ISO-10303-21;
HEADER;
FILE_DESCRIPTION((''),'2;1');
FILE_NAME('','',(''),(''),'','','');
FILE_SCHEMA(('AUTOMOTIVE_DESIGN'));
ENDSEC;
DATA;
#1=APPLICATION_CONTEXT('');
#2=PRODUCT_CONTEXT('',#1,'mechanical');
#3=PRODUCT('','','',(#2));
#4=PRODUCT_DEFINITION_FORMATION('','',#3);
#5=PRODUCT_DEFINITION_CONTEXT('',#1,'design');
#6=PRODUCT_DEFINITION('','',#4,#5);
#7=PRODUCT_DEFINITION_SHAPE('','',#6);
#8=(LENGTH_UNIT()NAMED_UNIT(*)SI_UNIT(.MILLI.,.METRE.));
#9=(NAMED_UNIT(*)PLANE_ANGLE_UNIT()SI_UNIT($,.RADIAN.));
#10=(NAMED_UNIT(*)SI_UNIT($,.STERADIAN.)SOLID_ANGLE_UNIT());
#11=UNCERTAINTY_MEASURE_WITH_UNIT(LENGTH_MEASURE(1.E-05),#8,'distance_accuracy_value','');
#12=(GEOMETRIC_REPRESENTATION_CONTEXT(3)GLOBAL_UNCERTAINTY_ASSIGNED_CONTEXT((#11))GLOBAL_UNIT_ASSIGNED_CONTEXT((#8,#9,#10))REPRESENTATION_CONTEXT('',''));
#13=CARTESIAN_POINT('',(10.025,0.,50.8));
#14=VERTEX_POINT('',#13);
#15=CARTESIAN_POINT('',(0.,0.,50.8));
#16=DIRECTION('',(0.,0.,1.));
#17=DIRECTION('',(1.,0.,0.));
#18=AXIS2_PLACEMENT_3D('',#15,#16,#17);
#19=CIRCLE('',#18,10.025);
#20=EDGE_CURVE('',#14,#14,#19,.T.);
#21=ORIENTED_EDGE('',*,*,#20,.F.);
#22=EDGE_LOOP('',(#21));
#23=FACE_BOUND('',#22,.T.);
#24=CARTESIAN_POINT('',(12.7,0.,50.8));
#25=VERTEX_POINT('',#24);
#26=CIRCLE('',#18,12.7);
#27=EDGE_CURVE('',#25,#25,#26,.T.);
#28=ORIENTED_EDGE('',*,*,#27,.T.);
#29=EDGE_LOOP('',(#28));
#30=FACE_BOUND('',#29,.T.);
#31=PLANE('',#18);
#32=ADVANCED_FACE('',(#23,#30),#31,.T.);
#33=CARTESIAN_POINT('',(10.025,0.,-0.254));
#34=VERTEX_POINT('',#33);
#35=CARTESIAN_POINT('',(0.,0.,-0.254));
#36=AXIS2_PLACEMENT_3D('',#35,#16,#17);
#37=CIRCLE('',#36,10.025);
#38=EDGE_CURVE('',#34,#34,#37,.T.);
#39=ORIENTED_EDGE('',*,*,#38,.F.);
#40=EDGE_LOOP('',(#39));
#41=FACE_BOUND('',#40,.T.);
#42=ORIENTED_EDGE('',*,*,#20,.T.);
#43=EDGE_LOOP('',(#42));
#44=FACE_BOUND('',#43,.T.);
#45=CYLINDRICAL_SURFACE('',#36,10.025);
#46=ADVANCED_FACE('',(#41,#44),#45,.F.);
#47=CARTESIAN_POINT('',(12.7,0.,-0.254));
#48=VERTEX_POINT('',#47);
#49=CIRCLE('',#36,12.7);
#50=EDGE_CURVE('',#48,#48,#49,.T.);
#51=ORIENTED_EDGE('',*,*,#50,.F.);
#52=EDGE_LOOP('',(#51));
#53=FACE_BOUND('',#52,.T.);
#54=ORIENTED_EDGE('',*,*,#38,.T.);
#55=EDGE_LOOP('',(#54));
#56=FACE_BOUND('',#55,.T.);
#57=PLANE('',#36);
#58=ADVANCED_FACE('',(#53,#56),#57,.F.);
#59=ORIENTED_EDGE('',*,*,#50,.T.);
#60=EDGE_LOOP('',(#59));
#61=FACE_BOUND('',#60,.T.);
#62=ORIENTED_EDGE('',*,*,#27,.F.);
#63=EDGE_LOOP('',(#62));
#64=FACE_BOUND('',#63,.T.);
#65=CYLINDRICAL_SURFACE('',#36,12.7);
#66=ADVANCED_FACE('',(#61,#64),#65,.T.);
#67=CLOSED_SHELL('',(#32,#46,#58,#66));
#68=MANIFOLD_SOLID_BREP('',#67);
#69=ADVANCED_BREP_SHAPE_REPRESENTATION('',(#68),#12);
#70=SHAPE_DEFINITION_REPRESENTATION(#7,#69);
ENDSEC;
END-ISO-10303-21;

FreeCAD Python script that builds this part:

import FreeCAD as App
import Part
import Sketcher
from FreeCAD import Vector
Q = App.Units.Quantity

doc = App.newDocument("Part")
params = doc.addObject("Spreadsheet::Sheet", "Params")
for row, (alias, value) in enumerate([
    ("sketch1_diameter", "1 in"),
    ("pad1_length", "2 in"),
    ("pad1_length2", "0.01 in"),
], start=1):
    params.set(f"A{row}", alias)
    params.set(f"B{row}", "=" + value)
    params.setAlias(f"B{row}", alias)

body = doc.addObject("PartDesign::Body", "Body")

# Sketch on XY plane
sketch1 = doc.addObject("Sketcher::SketchObject", "Sketch")
body.addObject(sketch1)
sketch1.AttachmentSupport = (doc.XY_Plane, [""])
sketch1.MapMode = "FlatFace"
sketch1.addGeometry(Part.Circle(Vector(0, 0, 0), Vector(0, 0, 1), 13), False)
sketch1.addGeometry(Part.Circle(Vector(0, 0, 0), Vector(0, 0, 1), 10), False)
sketch1.addConstraint(Sketcher.Constraint("Coincident", 0, 3, -1, 1))
sketch1.addConstraint(Sketcher.Constraint("Coincident", 1, 3, -1, 1))
sketch1.addConstraint(Sketcher.Constraint("Diameter", 0, Q("1 in")))
sketch1.addConstraint(Sketcher.Constraint("Diameter", 1, 20.05))
sketch1.setExpression("Constraints[2]", "Params.sketch1_diameter")
pad1 = doc.addObject("PartDesign::Pad", "Pad")
body.addObject(pad1)
pad1.Profile = sketch1
pad1.Type = "TwoLengths"
pad1.setExpression("Length", "Params.pad1_length")
pad1.setExpression("Length2", "Params.pad1_length2")

doc.recompute()
